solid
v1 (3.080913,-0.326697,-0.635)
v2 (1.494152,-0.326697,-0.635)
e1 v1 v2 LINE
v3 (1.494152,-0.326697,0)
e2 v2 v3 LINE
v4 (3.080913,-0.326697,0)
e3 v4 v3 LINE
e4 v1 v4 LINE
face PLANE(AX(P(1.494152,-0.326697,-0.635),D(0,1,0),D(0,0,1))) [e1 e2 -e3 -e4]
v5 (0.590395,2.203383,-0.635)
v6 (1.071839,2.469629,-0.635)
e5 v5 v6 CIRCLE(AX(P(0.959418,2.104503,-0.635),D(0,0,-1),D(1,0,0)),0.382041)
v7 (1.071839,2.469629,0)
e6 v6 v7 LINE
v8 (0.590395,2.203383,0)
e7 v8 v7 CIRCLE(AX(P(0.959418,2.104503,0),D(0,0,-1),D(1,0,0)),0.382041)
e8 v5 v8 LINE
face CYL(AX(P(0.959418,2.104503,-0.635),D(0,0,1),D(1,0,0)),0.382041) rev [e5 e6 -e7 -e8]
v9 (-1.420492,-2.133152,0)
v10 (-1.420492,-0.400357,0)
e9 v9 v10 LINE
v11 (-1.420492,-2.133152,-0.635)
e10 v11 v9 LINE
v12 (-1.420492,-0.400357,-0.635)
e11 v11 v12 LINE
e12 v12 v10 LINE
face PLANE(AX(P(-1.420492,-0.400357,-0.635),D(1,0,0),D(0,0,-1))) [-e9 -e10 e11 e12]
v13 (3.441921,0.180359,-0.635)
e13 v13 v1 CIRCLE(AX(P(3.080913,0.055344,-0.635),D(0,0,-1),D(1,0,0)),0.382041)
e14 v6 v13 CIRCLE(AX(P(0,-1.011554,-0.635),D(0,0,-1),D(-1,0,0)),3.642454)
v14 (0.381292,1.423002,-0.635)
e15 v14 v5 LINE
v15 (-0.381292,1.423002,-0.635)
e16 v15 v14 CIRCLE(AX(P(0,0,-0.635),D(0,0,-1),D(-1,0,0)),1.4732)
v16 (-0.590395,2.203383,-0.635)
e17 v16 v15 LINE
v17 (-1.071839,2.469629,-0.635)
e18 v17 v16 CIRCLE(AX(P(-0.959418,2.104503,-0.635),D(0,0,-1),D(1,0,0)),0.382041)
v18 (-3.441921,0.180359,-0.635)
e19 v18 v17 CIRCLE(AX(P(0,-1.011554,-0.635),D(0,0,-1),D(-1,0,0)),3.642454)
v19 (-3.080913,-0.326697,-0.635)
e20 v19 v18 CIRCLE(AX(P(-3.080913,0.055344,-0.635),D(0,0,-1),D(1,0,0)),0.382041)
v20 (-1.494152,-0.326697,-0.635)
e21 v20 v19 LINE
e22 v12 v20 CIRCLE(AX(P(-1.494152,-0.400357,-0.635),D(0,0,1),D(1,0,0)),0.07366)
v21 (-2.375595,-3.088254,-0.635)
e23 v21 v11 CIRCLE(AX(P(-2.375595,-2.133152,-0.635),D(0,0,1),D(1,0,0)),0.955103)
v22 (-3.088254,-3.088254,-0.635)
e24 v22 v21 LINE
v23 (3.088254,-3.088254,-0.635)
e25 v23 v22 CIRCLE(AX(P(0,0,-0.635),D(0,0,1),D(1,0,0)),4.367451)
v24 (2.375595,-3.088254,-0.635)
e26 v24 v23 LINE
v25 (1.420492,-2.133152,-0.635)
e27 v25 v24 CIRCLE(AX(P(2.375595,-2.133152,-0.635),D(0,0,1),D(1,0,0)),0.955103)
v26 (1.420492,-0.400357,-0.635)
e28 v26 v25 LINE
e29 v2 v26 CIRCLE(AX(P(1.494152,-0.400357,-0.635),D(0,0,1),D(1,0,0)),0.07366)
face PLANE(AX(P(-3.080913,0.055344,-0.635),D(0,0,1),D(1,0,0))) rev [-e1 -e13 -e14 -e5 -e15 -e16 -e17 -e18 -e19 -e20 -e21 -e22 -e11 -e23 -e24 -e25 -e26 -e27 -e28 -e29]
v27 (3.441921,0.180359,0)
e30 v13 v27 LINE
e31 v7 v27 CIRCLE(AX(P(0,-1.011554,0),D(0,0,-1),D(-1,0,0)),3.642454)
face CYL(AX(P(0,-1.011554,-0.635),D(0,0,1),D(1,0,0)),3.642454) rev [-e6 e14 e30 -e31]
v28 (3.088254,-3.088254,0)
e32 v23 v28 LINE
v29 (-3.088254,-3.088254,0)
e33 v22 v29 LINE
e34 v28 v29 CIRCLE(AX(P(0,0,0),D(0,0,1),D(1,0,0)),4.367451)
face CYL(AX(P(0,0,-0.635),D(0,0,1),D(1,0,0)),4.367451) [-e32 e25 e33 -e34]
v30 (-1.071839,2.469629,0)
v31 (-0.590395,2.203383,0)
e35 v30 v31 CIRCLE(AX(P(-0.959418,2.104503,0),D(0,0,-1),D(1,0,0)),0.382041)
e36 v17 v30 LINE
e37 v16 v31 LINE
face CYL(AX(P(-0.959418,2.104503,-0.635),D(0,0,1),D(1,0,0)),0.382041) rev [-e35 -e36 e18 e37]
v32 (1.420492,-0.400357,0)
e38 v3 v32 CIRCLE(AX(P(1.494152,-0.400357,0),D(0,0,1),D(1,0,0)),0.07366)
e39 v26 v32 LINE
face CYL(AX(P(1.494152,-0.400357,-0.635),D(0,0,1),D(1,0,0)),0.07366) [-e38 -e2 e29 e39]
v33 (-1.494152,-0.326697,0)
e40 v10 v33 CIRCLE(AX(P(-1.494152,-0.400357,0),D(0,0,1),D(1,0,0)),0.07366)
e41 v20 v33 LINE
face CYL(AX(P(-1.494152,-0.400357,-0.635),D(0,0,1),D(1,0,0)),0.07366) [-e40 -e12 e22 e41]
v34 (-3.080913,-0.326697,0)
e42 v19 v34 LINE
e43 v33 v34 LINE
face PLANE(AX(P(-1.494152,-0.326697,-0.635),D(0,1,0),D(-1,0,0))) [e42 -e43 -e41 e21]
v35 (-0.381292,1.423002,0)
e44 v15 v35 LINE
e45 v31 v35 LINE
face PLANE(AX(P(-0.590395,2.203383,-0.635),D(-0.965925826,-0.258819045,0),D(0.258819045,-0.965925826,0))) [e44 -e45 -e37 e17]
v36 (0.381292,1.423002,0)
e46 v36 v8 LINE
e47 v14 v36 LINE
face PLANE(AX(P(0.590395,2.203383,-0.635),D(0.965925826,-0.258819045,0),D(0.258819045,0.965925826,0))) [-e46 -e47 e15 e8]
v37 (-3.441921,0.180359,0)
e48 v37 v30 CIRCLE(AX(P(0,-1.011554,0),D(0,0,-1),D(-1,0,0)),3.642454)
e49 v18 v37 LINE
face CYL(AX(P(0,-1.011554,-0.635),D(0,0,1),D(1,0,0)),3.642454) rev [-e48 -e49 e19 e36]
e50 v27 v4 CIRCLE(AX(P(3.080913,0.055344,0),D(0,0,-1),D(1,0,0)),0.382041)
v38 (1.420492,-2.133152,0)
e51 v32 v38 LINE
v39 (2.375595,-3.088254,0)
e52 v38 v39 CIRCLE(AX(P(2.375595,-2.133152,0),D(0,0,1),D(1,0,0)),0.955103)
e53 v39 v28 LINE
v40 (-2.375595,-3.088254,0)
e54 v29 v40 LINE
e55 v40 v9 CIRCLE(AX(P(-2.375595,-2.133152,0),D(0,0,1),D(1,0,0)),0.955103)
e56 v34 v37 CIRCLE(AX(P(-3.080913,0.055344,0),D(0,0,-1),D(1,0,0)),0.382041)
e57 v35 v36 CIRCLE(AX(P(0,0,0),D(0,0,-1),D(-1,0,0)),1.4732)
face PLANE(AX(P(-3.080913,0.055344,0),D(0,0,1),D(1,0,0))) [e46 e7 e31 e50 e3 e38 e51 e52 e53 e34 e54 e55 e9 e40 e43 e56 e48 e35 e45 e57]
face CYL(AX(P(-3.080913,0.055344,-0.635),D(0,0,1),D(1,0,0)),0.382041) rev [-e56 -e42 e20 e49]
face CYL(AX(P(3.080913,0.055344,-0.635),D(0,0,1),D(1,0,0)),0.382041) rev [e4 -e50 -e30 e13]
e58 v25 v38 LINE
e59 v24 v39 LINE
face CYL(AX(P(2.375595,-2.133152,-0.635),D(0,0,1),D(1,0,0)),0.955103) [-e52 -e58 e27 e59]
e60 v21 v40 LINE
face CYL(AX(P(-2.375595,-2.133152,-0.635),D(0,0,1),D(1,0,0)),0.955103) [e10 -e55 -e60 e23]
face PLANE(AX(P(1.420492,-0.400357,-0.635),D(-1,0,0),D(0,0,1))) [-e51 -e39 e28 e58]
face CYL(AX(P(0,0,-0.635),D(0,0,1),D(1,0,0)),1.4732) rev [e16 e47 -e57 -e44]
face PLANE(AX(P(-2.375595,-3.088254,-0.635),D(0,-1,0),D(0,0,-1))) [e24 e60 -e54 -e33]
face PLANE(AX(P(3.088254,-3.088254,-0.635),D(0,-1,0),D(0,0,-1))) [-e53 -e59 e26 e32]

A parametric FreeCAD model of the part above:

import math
import FreeCAD as App
import Part
import Sketcher
Q = App.Units.Quantity

doc = App.newDocument("Part")
body = doc.addObject("PartDesign::Body", "Body")

# Sketch on XY plane
sketch1 = body.newObject("Sketcher::SketchObject", "Sketch")
sketch1.AttachmentSupport = (doc.getObject("XY_Plane"), [""])
sketch1.MapMode = "FlatFace"
sketch1.addGeometry([
    Part.LineSegment(App.Vector(2.38, -3.09, 0), App.Vector(3.09, -3.09, 0)),  # 0
    Part.ArcOfCircle(Part.Circle(App.Vector(0, 0, 0), App.Vector(0, 0, 1), 4.37), math.radians(-45), math.radians(225)),  # 1
    Part.LineSegment(App.Vector(-3.09, -3.09, 0), App.Vector(-2.38, -3.09, 0)),  # 2
    Part.ArcOfCircle(Part.Circle(App.Vector(-2.38, -2.13, 0), App.Vector(0, 0, 1), 0.96), math.radians(-90), math.radians(0)),  # 3
    Part.LineSegment(App.Vector(-1.42, -2.13, 0), App.Vector(-1.42, -0.4, 0)),  # 4
    Part.ArcOfCircle(Part.Circle(App.Vector(-1.49, -0.4, 0), App.Vector(0, 0, 1), 0.07), math.radians(0), math.radians(90)),  # 5
    Part.LineSegment(App.Vector(-1.49, -0.33, 0), App.Vector(-3.08, -0.33, 0)),  # 6
    Part.ArcOfCircle(Part.Circle(App.Vector(-3.08, 0.06, 0), App.Vector(0, 0, 1), 0.38), math.radians(161), math.radians(270)),  # 7
    Part.ArcOfCircle(Part.Circle(App.Vector(0, -1.01, 0), App.Vector(0, 0, 1), 3.64), math.radians(107), math.radians(161)),  # 8
    Part.ArcOfCircle(Part.Circle(App.Vector(-0.96, 2.1, 0), App.Vector(0, 0, 1), 0.38), math.radians(15), math.radians(107)),  # 9
    Part.LineSegment(App.Vector(-0.59, 2.2, 0), App.Vector(-0.38, 1.42, 0)),  # 10
    Part.ArcOfCircle(Part.Circle(App.Vector(0, 0, 0), App.Vector(0, 0, 1), 1.47), math.radians(75), math.radians(105)),  # 11
    Part.LineSegment(App.Vector(0.38, 1.42, 0), App.Vector(0.59, 2.2, 0)),  # 12
    Part.ArcOfCircle(Part.Circle(App.Vector(0.96, 2.1, 0), App.Vector(0, 0, 1), 0.38), math.radians(73), math.radians(165)),  # 13
    Part.ArcOfCircle(Part.Circle(App.Vector(0, -1.01, 0), App.Vector(0, 0, 1), 3.64), math.radians(19), math.radians(73)),  # 14
    Part.ArcOfCircle(Part.Circle(App.Vector(3.08, 0.06, 0), App.Vector(0, 0, 1), 0.38), math.radians(-90), math.radians(19)),  # 15
    Part.LineSegment(App.Vector(3.08, -0.33, 0), App.Vector(1.49, -0.33, 0)),  # 16
    Part.ArcOfCircle(Part.Circle(App.Vector(1.49, -0.4, 0), App.Vector(0, 0, 1), 0.07), math.radians(90), math.radians(180)),  # 17
    Part.LineSegment(App.Vector(1.42, -0.4, 0), App.Vector(1.42, -2.13, 0)),  # 18
    Part.ArcOfCircle(Part.Circle(App.Vector(2.38, -2.13, 0), App.Vector(0, 0, 1), 0.96), math.radians(180), math.radians(270)),  # 19
], False)
sketch1.addConstraint([
    Sketcher.Constraint("Coincident", 0, 2, 1, 1),
    Sketcher.Constraint("Coincident", 1, 2, 2, 1),
    Sketcher.Constraint("Tangent", 2, 2, 3, 1),
    Sketcher.Constraint("Tangent", 3, 2, 4, 1),
    Sketcher.Constraint("Tangent", 4, 2, 5, 1),
    Sketcher.Constraint("Tangent", 5, 2, 6, 1),
    Sketcher.Constraint("Tangent", 6, 2, 7, 2),
    Sketcher.Constraint("Tangent", 7, 1, 8, 2),
    Sketcher.Constraint("Tangent", 8, 1, 9, 2),
    Sketcher.Constraint("Tangent", 9, 1, 10, 1),
    Sketcher.Constraint("Coincident", 10, 2, 11, 2),
    Sketcher.Constraint("Coincident", 11, 1, 12, 1),
    Sketcher.Constraint("Tangent", 12, 2, 13, 2),
    Sketcher.Constraint("Tangent", 13, 1, 14, 2),
    Sketcher.Constraint("Tangent", 14, 1, 15, 2),
    Sketcher.Constraint("Tangent", 15, 1, 16, 1),
    Sketcher.Constraint("Tangent", 16, 2, 17, 1),
    Sketcher.Constraint("Tangent", 17, 2, 18, 1),
    Sketcher.Constraint("Tangent", 18, 2, 19, 1),
    Sketcher.Constraint("Tangent", 19, 2, 0, 1),
    Sketcher.Constraint("Horizontal", 0),
    Sketcher.Constraint("Horizontal", 2),
    Sketcher.Constraint("Vertical", 4),
    Sketcher.Constraint("Horizontal", 6),
    Sketcher.Constraint("Horizontal", 16),
    Sketcher.Constraint("Vertical", 18),
    Sketcher.Constraint("Coincident", 1, 3, -1, 1),
    Sketcher.Constraint("Coincident", 11, 3, -1, 1),
    Sketcher.Constraint("Coincident", 14, 3, 8, 3),
    Sketcher.Constraint("Equal", 7, 9),
    Sketcher.Constraint("Equal", 9, 13),
    Sketcher.Constraint("Equal", 8, 14),
    Sketcher.Constraint("Equal", 13, 15),
    Sketcher.Constraint("Equal", 5, 17),
    Sketcher.Constraint("Equal", 3, 19),
    Sketcher.Constraint("Symmetric", 9, 3, 13, 3, -2),
    Sketcher.Constraint("Symmetric", 5, 3, 17, 3, -2),
    Sketcher.Constraint("Horizontal", 3, 3, 19, 3),
    Sketcher.Constraint("Horizontal", 10, 2, 11, 1),
    Sketcher.Constraint("Angle", 10, Q("-75 deg")),
    Sketcher.Constraint("Radius", 11, Q("0.058 in")),
    Sketcher.Constraint("Radius", 5, Q("0.0029 in")),
    Sketcher.Constraint("Radius", 1, Q("4.367451 mm")),
    Sketcher.Constraint("Radius", 7, Q("0.382041 mm")),
    Sketcher.Constraint("Radius", 3, Q("0.955103 mm")),
    Sketcher.Constraint("Radius", 8, Q("3.642454 mm")),
    Sketcher.Constraint("DistanceX", 0, 1, 0, 2, Q("0.712659 mm")),
    Sketcher.Constraint("DistanceX", 6, 2, 6, 1, Q("1.586761 mm")),
    Sketcher.Constraint("DistanceY", -1, 1, 10, 2, Q("1.423002 mm")),
    Sketcher.Constraint("DistanceY", 8, 3, 7, 3, Q("1.066898 mm")),
    Sketcher.Constraint("DistanceY", 0, 2, 15, 3, Q("3.143599 mm")),
])
pad1 = body.newObject("PartDesign::Pad", "Pad")
pad1.Profile = sketch1
pad1.Length = Q("0.025 in")
pad1.Reversed = True

doc.recompute()
